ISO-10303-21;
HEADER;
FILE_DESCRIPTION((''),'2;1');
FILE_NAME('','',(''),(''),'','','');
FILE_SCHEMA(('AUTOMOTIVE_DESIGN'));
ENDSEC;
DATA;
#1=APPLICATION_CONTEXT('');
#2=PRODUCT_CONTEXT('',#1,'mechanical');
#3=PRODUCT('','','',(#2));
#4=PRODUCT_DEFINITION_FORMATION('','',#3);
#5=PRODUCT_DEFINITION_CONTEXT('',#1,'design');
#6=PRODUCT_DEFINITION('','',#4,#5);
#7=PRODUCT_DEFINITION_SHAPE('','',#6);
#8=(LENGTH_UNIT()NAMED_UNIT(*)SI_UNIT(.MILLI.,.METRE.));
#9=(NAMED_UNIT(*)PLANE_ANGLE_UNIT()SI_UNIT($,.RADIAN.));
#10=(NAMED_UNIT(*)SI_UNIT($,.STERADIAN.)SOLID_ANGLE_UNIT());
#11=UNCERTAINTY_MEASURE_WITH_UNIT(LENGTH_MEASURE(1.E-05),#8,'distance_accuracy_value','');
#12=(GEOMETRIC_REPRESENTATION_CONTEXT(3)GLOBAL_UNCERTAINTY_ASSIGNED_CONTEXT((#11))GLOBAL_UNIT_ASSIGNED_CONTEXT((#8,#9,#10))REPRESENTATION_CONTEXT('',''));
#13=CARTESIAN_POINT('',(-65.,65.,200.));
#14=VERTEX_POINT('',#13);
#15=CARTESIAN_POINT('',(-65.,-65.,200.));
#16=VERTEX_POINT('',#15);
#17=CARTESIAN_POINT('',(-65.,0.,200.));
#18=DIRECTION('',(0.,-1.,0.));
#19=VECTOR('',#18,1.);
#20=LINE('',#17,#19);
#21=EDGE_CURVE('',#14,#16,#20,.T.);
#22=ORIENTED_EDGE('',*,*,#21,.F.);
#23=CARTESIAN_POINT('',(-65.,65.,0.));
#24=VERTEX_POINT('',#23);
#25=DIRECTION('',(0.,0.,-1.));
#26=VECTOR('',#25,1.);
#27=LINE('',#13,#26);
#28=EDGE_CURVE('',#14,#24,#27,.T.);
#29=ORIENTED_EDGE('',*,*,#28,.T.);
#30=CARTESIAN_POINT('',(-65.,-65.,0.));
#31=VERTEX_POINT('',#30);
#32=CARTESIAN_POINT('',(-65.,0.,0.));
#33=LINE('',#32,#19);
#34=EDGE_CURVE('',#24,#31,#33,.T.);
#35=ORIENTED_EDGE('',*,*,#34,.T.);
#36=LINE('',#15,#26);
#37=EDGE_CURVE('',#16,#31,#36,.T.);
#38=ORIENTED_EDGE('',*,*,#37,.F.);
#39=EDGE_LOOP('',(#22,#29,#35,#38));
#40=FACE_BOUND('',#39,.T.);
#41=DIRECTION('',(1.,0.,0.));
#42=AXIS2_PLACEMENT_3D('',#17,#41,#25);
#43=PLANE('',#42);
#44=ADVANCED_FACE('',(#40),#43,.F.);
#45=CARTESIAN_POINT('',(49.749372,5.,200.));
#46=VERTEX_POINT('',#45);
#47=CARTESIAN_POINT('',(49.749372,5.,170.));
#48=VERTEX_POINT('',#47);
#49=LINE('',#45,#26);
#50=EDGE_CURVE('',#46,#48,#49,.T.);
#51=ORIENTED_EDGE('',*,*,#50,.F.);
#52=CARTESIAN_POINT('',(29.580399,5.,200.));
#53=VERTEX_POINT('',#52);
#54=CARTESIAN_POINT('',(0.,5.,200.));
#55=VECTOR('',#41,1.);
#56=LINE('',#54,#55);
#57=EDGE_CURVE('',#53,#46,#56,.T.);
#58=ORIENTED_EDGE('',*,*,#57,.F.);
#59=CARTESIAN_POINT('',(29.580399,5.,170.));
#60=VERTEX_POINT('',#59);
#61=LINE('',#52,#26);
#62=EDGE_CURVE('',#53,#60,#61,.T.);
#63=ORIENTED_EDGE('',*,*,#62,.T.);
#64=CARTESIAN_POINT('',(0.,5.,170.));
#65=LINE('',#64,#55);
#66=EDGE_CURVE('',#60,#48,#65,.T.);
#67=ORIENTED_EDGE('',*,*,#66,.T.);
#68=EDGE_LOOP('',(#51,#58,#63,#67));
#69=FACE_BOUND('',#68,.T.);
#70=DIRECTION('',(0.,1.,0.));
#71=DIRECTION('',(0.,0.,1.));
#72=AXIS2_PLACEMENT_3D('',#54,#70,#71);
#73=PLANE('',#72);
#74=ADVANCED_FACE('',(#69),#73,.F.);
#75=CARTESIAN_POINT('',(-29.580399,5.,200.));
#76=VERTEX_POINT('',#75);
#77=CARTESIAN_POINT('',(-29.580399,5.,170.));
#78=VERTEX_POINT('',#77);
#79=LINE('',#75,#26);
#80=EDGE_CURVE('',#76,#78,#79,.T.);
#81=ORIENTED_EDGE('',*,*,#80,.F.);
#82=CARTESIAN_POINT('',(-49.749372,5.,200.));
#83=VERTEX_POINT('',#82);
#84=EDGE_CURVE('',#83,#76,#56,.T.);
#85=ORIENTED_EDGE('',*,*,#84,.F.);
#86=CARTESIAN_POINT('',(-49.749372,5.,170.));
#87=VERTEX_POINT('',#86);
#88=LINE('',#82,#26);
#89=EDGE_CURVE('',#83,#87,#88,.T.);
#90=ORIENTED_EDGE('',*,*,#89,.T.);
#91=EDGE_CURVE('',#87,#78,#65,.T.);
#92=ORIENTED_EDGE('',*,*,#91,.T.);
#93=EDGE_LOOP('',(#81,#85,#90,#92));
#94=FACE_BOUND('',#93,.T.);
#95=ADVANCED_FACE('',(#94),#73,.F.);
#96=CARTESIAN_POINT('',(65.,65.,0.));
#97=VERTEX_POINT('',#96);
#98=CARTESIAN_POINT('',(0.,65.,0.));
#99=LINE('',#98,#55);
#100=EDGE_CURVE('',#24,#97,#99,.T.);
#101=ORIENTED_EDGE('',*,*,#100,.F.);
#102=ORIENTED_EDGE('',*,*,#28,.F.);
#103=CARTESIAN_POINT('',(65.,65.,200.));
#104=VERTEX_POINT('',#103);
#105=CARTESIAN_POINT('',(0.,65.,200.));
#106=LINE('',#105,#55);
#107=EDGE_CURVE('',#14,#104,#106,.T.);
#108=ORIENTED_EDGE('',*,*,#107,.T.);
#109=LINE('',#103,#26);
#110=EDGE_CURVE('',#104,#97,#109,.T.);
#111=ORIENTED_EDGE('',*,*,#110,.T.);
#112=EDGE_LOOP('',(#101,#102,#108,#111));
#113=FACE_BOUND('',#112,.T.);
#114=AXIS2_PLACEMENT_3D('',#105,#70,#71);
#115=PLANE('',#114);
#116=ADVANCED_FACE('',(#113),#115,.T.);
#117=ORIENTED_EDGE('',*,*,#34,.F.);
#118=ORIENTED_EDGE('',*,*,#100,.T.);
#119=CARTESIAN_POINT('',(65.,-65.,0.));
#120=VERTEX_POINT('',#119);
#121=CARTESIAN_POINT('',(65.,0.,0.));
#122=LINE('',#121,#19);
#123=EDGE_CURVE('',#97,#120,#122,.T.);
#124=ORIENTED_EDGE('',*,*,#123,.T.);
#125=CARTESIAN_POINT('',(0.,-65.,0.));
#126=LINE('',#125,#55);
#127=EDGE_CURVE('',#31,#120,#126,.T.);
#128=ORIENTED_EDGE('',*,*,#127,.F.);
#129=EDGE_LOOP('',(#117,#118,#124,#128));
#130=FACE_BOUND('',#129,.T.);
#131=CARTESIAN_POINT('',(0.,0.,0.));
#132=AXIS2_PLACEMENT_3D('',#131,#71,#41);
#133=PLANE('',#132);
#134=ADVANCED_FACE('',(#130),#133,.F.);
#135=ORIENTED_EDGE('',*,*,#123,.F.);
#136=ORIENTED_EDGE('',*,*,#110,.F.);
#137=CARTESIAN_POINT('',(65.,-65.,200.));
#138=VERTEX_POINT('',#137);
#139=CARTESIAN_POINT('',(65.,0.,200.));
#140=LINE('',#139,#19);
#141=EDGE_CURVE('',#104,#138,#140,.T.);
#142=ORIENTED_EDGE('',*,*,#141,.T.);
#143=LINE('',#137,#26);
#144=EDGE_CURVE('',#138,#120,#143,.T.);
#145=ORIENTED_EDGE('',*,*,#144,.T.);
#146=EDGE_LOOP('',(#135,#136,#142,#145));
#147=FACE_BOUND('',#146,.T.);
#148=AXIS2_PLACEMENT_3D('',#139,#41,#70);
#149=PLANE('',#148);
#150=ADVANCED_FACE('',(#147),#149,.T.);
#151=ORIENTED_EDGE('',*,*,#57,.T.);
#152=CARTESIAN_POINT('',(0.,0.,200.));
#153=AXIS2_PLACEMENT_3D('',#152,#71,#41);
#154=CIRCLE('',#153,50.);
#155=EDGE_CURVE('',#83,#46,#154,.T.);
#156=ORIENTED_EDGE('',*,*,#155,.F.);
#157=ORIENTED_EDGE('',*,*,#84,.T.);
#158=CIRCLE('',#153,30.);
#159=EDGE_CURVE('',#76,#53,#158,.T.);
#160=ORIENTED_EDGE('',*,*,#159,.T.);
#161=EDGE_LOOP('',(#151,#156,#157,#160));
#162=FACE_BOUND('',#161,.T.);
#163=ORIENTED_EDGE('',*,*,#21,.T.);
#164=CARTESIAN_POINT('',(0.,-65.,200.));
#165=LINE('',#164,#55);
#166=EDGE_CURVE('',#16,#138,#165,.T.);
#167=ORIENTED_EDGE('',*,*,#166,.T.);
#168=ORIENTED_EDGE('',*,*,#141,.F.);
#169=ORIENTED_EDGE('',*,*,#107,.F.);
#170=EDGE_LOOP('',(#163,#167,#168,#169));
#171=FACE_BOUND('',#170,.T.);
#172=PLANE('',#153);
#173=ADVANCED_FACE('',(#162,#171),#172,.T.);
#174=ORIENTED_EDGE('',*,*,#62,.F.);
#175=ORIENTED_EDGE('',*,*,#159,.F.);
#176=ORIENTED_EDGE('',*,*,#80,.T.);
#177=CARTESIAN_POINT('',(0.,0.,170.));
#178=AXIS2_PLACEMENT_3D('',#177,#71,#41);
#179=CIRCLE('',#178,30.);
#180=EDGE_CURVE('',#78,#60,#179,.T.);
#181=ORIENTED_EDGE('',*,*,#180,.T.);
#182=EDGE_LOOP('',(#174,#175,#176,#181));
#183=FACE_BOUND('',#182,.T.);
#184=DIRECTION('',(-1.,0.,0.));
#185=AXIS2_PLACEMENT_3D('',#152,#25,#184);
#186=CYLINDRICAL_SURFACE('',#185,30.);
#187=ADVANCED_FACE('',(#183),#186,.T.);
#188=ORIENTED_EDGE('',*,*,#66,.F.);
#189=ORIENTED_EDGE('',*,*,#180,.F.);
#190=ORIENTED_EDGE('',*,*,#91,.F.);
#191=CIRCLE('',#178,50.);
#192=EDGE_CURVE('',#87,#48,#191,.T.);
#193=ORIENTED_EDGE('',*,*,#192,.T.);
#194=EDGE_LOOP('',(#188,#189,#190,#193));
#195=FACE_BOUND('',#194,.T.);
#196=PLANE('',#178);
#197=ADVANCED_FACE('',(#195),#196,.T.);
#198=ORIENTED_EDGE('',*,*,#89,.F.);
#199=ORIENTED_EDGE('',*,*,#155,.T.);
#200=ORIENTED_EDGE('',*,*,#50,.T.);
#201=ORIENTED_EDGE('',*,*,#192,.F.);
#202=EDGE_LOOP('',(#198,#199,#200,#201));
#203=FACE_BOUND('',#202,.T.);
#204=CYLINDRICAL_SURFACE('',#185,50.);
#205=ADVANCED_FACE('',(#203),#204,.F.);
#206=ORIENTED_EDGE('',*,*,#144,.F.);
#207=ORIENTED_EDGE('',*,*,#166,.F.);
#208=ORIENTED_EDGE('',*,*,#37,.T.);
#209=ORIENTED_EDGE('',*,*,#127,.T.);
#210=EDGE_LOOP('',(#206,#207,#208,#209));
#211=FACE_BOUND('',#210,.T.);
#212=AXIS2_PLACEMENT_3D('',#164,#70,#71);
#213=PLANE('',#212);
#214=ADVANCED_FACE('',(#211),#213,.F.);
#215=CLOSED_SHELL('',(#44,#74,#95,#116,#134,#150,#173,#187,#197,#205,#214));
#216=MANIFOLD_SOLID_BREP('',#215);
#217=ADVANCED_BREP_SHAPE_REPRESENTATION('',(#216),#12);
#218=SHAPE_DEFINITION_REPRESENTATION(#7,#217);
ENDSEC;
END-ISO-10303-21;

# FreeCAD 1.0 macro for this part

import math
import FreeCAD as App
import Part
import Sketcher
from FreeCAD import Vector
Q = App.Units.Quantity

doc = App.newDocument("Part")
body = doc.addObject("PartDesign::Body", "Body")

# Sketch on XY plane
sketch1 = body.newObject("Sketcher::SketchObject", "Sketch")
sketch1.AttachmentSupport = (doc.getObject("XY_Plane"), [""])
sketch1.MapMode = "FlatFace"
sketch1.addGeometry([
    Part.LineSegment(Vector(-65, 65, 0), Vector(-65, -65, 0)),  # 0
    Part.LineSegment(Vector(-65, -65, 0), Vector(65, -65, 0)),  # 1
    Part.LineSegment(Vector(65, -65, 0), Vector(65, 65, 0)),  # 2
    Part.LineSegment(Vector(65, 65, 0), Vector(-65, 65, 0)),  # 3
    Part.ArcOfCircle(Part.Circle(Vector(0, 0, 0), Vector(0, 0, 1), 50), math.radians(174.26083), math.radians(365.73917)),  # 4
    Part.LineSegment(Vector(-49.749372, 5, 0), Vector(-29.580399, 5, 0)),  # 5
    Part.ArcOfCircle(Part.Circle(Vector(0, 0, 0), Vector(0, 0, 1), 30), math.radians(170.405932), math.radians(369.594068)),  # 6
    Part.LineSegment(Vector(29.580399, 5, 0), Vector(49.749372, 5, 0)),  # 7
], False)
sketch1.addConstraint([
    Sketcher.Constraint("Coincident", 0, 2, 1, 1),
    Sketcher.Constraint("Coincident", 1, 2, 2, 1),
    Sketcher.Constraint("Coincident", 2, 2, 3, 1),
    Sketcher.Constraint("Coincident", 3, 2, 0, 1),
    Sketcher.Constraint("Coincident", 4, 1, 5, 1),
    Sketcher.Constraint("Coincident", 5, 2, 6, 1),
    Sketcher.Constraint("Coincident", 6, 2, 7, 1),
    Sketcher.Constraint("Coincident", 7, 2, 4, 2),
    Sketcher.Constraint("Vertical", 0),
    Sketcher.Constraint("Horizontal", 1),
    Sketcher.Constraint("Vertical", 2),
    Sketcher.Constraint("Horizontal", 3),
    Sketcher.Constraint("Horizontal", 5),
    Sketcher.Constraint("Horizontal", 7),
    Sketcher.Constraint("Coincident", 4, 3, -1, 1),
    Sketcher.Constraint("Coincident", 6, 3, -1, 1),
    Sketcher.Constraint("Symmetric", 0, 2, 2, 2, -1, 1),
    Sketcher.Constraint("Horizontal", 5, 2, 6, 2),
    Sketcher.Constraint("Equal", 3, 0),
    Sketcher.Constraint("Radius", 4, Q("50 mm")),
    Sketcher.Constraint("Radius", 6, Q("30 mm")),
    Sketcher.Constraint("DistanceX", 1, 1, 1, 2, Q("130 mm")),
    Sketcher.Constraint("DistanceY", -1, 1, 4, 1, Q("5 mm")),
])
pad1 = body.newObject("PartDesign::Pad", "Pad")
pad1.Profile = sketch1
pad1.Length = 200

# Sketch on XY plane
sketch2 = body.newObject("Sketcher::SketchObject", "Sketch001")
sketch2.AttachmentSupport = (doc.getObject("XY_Plane"), [""])
sketch2.MapMode = "FlatFace"
sketch2.addGeometry([
    Part.LineSegment(Vector(65, 65, 0), Vector(65, -65, 0)),
    Part.LineSegment(Vector(65, -65, 0), Vector(-65, -65, 0)),
    Part.LineSegment(Vector(-65, -65, 0), Vector(-65, 65, 0)),
    Part.LineSegment(Vector(-65, 65, 0), Vector(65, 65, 0)),
], False)
sketch2.addConstraint([
    Sketcher.Constraint("Coincident", 0, 2, 1, 1),
    Sketcher.Constraint("Coincident", 1, 2, 2, 1),
    Sketcher.Constraint("Coincident", 2, 2, 3, 1),
    Sketcher.Constraint("Coincident", 3, 2, 0, 1),
    Sketcher.Constraint("Vertical", 0),
    Sketcher.Constraint("Horizontal", 1),
    Sketcher.Constraint("Vertical", 2),
    Sketcher.Constraint("Horizontal", 3),
    Sketcher.Constraint("Symmetric", 0, 2, 2, 2, -1, 1),
    Sketcher.Constraint("Equal", 3, 0),
    Sketcher.Constraint("DistanceX", 1, 2, 1, 1, Q("130 mm")),
])
pad2 = body.newObject("PartDesign::Pad", "Pad001")
pad2.Profile = sketch2
pad2.Length = 170

doc.recompute()
